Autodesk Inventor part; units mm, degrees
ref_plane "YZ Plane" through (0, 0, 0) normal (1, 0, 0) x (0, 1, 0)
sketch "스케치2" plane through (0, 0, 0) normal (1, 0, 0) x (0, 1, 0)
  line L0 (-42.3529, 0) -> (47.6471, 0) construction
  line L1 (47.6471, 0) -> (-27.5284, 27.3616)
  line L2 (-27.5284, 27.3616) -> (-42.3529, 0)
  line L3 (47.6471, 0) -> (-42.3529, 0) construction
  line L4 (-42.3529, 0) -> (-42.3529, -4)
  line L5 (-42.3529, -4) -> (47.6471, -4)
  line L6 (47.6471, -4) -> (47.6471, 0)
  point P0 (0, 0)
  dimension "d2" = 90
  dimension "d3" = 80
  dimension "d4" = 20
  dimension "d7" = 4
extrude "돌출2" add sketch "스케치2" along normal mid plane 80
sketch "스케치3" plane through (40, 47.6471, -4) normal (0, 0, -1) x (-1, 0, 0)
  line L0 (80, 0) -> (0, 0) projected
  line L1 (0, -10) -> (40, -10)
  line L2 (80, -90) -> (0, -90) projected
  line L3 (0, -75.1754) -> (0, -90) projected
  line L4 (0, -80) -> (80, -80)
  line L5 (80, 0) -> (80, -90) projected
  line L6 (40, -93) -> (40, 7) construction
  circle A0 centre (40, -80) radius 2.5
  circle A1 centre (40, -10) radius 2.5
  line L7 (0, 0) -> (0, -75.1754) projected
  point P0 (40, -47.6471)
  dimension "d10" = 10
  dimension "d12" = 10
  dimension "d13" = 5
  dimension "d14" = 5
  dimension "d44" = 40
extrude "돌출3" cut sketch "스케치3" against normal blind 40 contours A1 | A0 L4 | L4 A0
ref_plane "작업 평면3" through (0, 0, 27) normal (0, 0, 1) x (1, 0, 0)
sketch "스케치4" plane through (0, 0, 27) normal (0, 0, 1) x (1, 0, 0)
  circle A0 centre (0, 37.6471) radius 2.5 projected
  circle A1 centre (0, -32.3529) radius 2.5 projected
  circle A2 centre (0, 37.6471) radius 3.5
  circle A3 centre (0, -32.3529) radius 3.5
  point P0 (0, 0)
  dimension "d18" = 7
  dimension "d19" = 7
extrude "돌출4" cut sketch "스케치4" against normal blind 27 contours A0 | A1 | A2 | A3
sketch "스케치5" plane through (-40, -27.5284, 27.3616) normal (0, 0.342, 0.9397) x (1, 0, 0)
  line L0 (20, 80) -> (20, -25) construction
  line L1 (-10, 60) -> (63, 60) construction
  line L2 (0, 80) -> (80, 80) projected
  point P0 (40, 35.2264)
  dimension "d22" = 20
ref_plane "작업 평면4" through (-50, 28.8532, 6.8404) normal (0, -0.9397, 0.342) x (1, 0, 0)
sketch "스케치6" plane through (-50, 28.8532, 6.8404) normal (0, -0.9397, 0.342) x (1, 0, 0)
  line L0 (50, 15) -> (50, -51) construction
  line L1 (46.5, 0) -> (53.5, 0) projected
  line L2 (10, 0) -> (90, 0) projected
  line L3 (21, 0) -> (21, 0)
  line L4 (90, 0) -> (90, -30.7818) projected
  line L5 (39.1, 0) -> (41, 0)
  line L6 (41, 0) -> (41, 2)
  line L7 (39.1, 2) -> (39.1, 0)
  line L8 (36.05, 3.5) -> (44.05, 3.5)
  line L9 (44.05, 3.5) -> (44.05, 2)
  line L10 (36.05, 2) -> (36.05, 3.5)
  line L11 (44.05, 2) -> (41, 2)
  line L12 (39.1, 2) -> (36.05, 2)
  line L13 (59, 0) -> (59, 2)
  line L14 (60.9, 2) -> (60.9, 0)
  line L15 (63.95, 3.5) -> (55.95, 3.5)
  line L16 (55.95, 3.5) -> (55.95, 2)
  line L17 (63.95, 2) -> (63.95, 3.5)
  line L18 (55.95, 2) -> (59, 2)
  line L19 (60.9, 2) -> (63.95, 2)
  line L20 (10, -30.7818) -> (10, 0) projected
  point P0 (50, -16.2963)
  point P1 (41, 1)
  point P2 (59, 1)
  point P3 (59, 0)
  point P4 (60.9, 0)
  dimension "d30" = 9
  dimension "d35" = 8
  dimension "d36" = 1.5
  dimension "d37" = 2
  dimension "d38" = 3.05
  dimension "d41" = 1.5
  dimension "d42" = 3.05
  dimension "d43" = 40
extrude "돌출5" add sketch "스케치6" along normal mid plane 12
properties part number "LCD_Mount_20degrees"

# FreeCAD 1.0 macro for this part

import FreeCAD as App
import Part
import Sketcher

V = App.Vector
Q = App.Units.Quantity


def add_polygon(sketch, points):
    """Adds a closed chain of lines whose ends are joined by coincident constraints."""
    first, n = sketch.GeometryCount, len(points)
    for a, b in zip(points, points[1:] + points[:1]):
        sketch.addGeometry(Part.LineSegment(App.Vector(*a, 0), App.Vector(*b, 0)), False)
    for i in range(n):
        sketch.addConstraint(Sketcher.Constraint("Coincident", first + i, 2, first + (i + 1) % n, 1))

doc = App.newDocument("Part")
body = doc.addObject("PartDesign::Body", "Body")

sketch1 = body.newObject("Sketcher::SketchObject", "Sketch")
sketch1.AttachmentSupport = (doc.getObject("YZ_Plane"), [""])
sketch1.MapMode = "FlatFace"
add_polygon(sketch1, [(47.6, -4), (47.6, 0), (-27.5, 27.4), (-42.4, 0), (-42.4, -4)])
sketch1.addConstraint(Sketcher.Constraint("Vertical", 0))
sketch1.addConstraint(Sketcher.Constraint("Vertical", 3))
sketch1.addConstraint(Sketcher.Constraint("Horizontal", 4))
sketch1.addConstraint(Sketcher.Constraint("PointOnObject", 0, 2, -1))
sketch1.addConstraint(Sketcher.Constraint("PointOnObject", 2, 2, -1))
sketch1.addConstraint(Sketcher.Constraint("DistanceX", 4, 1, 4, 2, 90.0))
sketch1.addConstraint(Sketcher.Constraint("DistanceY", 0, 1, 0, 2, 4.0))
sketch1.addConstraint(Sketcher.Constraint("Distance", 1, 80.0))
sketch1.addConstraint(Sketcher.Constraint("Angle", 1, Q("160 deg")))
sketch1.addConstraint(Sketcher.Constraint("DistanceX", -1, 1, 0, 2, 47.647))
pad1 = body.newObject("PartDesign::Pad", "Pad")
pad1.Profile = sketch1
pad1.Length = 80
pad1.Midplane = True

sketch2 = body.newObject("Sketcher::SketchObject", "Sketch001")
sketch2.AttachmentSupport = (doc.getObject("XY_Plane"), [""])
sketch2.MapMode = "FlatFace"
sketch2.AttachmentOffset = App.Placement(V(0, 0, -4), App.Rotation())
sketch2.addGeometry(Part.Circle(V(0, 37.6, 0), V(0, 0, 1), 2.5), False)
sketch2.addGeometry(Part.Circle(V(0, -32.4, 0), V(0, 0, 1), 2.5), False)
sketch2.addConstraint(Sketcher.Constraint("Equal", 0, 1))
sketch2.addConstraint(Sketcher.Constraint("PointOnObject", 0, 3, -2))
sketch2.addConstraint(Sketcher.Constraint("PointOnObject", 1, 3, -2))
sketch2.addConstraint(Sketcher.Constraint("Diameter", 0, 5.0))
sketch2.addConstraint(Sketcher.Constraint("DistanceY", 1, 3, 0, 3, 70.0))
sketch2.addConstraint(Sketcher.Constraint("DistanceY", -1, 1, 0, 3, 37.647))
pocket1 = body.newObject("PartDesign::Pocket", "Pocket")
pocket1.Profile = sketch2
pocket1.Length = 40
pocket1.Reversed = True

sketch3 = body.newObject("Sketcher::SketchObject", "Sketch002")
sketch3.AttachmentSupport = (doc.getObject("XY_Plane"), [""])
sketch3.MapMode = "FlatFace"
sketch3.AttachmentOffset = App.Placement(V(0, 0, 27), App.Rotation())
sketch3.addGeometry(Part.Circle(V(0, 37.6, 0), V(0, 0, 1), 3.5), False)
sketch3.addGeometry(Part.Circle(V(0, -32.4, 0), V(0, 0, 1), 3.5), False)
sketch3.addConstraint(Sketcher.Constraint("Equal", 0, 1))
sketch3.addConstraint(Sketcher.Constraint("PointOnObject", 0, 3, -2))
sketch3.addConstraint(Sketcher.Constraint("PointOnObject", 1, 3, -2))
sketch3.addConstraint(Sketcher.Constraint("Diameter", 0, 7.0))
sketch3.addConstraint(Sketcher.Constraint("DistanceY", 1, 3, 0, 3, 70.0))
sketch3.addConstraint(Sketcher.Constraint("DistanceY", -1, 1, 0, 3, 37.647))
pocket2 = body.newObject("PartDesign::Pocket", "Pocket001")
pocket2.Profile = sketch3
pocket2.Length = 27

sketch4 = body.newObject("Sketcher::SketchObject", "Sketch003")
sketch4.Placement = App.Placement(V(-50, 28.8532, 6.8404), App.Rotation(V(1, 0, 0), V(0, 0.342020143, 0.939692621), V(0, -0.939692621, 0.342020143), "ZXY"))
add_polygon(sketch4, [(59, 2), (59, 0), (60.9, 0), (60.9, 2), (64, 2), (64, 3.5), (56, 3.5), (56, 2)])
add_polygon(sketch4, [(39.1, 0), (41, 0), (41, 2), (44, 2), (44, 3.5), (36, 3.5), (36, 2), (39.1, 2)])
sketch4.addConstraint(Sketcher.Constraint("Vertical", 0))
sketch4.addConstraint(Sketcher.Constraint("Horizontal", 1))
sketch4.addConstraint(Sketcher.Constraint("Vertical", 2))
sketch4.addConstraint(Sketcher.Constraint("Horizontal", 3))
sketch4.addConstraint(Sketcher.Constraint("Vertical", 4))
sketch4.addConstraint(Sketcher.Constraint("Horizontal", 5))
sketch4.addConstraint(Sketcher.Constraint("Vertical", 6))
sketch4.addConstraint(Sketcher.Constraint("Horizontal", 7))
sketch4.addConstraint(Sketcher.Constraint("Horizontal", 8))
sketch4.addConstraint(Sketcher.Constraint("Vertical", 9))
sketch4.addConstraint(Sketcher.Constraint("Horizontal", 10))
sketch4.addConstraint(Sketcher.Constraint("Vertical", 11))
sketch4.addConstraint(Sketcher.Constraint("Horizontal", 12))
sketch4.addConstraint(Sketcher.Constraint("Vertical", 13))
sketch4.addConstraint(Sketcher.Constraint("Horizontal", 14))
sketch4.addConstraint(Sketcher.Constraint("Vertical", 15))
sketch4.addConstraint(Sketcher.Constraint("PointOnObject", 0, 2, -1))
sketch4.addConstraint(Sketcher.Constraint("PointOnObject", 8, 2, -1))
sketch4.addConstraint(Sketcher.Constraint("Horizontal", 3, 2, 6, 2))
sketch4.addConstraint(Sketcher.Constraint("Horizontal", 7, 2, 9, 2))
sketch4.addConstraint(Sketcher.Constraint("Horizontal", 5, 2, 11, 2))
sketch4.addConstraint(Sketcher.Constraint("Horizontal", 10, 2, 13, 2))
sketch4.addConstraint(Sketcher.Constraint("Equal", 3, 7))
sketch4.addConstraint(Sketcher.Constraint("Equal", 1, 8))
sketch4.addConstraint(Sketcher.Constraint("Equal", 7, 10))
sketch4.addConstraint(Sketcher.Constraint("Equal", 5, 12))
sketch4.addConstraint(Sketcher.Constraint("DistanceX", 5, 2, 5, 1, 8.0))
sketch4.addConstraint(Sketcher.Constraint("DistanceY", 0, 2, 0, 1, 2.0))
sketch4.addConstraint(Sketcher.Constraint("DistanceY", 4, 1, 4, 2, 1.5))
sketch4.addConstraint(Sketcher.Constraint("DistanceX", 3, 1, 3, 2, 3.05))
sketch4.addConstraint(Sketcher.Constraint("DistanceX", -1, 1, 0, 2, 59.0))
sketch4.addConstraint(Sketcher.Constraint("DistanceX", -1, 1, 8, 2, 41.0))
pad2 = body.newObject("PartDesign::Pad", "Pad001")
pad2.Profile = sketch4
pad2.Length = 12
pad2.Midplane = True

doc.recompute()
